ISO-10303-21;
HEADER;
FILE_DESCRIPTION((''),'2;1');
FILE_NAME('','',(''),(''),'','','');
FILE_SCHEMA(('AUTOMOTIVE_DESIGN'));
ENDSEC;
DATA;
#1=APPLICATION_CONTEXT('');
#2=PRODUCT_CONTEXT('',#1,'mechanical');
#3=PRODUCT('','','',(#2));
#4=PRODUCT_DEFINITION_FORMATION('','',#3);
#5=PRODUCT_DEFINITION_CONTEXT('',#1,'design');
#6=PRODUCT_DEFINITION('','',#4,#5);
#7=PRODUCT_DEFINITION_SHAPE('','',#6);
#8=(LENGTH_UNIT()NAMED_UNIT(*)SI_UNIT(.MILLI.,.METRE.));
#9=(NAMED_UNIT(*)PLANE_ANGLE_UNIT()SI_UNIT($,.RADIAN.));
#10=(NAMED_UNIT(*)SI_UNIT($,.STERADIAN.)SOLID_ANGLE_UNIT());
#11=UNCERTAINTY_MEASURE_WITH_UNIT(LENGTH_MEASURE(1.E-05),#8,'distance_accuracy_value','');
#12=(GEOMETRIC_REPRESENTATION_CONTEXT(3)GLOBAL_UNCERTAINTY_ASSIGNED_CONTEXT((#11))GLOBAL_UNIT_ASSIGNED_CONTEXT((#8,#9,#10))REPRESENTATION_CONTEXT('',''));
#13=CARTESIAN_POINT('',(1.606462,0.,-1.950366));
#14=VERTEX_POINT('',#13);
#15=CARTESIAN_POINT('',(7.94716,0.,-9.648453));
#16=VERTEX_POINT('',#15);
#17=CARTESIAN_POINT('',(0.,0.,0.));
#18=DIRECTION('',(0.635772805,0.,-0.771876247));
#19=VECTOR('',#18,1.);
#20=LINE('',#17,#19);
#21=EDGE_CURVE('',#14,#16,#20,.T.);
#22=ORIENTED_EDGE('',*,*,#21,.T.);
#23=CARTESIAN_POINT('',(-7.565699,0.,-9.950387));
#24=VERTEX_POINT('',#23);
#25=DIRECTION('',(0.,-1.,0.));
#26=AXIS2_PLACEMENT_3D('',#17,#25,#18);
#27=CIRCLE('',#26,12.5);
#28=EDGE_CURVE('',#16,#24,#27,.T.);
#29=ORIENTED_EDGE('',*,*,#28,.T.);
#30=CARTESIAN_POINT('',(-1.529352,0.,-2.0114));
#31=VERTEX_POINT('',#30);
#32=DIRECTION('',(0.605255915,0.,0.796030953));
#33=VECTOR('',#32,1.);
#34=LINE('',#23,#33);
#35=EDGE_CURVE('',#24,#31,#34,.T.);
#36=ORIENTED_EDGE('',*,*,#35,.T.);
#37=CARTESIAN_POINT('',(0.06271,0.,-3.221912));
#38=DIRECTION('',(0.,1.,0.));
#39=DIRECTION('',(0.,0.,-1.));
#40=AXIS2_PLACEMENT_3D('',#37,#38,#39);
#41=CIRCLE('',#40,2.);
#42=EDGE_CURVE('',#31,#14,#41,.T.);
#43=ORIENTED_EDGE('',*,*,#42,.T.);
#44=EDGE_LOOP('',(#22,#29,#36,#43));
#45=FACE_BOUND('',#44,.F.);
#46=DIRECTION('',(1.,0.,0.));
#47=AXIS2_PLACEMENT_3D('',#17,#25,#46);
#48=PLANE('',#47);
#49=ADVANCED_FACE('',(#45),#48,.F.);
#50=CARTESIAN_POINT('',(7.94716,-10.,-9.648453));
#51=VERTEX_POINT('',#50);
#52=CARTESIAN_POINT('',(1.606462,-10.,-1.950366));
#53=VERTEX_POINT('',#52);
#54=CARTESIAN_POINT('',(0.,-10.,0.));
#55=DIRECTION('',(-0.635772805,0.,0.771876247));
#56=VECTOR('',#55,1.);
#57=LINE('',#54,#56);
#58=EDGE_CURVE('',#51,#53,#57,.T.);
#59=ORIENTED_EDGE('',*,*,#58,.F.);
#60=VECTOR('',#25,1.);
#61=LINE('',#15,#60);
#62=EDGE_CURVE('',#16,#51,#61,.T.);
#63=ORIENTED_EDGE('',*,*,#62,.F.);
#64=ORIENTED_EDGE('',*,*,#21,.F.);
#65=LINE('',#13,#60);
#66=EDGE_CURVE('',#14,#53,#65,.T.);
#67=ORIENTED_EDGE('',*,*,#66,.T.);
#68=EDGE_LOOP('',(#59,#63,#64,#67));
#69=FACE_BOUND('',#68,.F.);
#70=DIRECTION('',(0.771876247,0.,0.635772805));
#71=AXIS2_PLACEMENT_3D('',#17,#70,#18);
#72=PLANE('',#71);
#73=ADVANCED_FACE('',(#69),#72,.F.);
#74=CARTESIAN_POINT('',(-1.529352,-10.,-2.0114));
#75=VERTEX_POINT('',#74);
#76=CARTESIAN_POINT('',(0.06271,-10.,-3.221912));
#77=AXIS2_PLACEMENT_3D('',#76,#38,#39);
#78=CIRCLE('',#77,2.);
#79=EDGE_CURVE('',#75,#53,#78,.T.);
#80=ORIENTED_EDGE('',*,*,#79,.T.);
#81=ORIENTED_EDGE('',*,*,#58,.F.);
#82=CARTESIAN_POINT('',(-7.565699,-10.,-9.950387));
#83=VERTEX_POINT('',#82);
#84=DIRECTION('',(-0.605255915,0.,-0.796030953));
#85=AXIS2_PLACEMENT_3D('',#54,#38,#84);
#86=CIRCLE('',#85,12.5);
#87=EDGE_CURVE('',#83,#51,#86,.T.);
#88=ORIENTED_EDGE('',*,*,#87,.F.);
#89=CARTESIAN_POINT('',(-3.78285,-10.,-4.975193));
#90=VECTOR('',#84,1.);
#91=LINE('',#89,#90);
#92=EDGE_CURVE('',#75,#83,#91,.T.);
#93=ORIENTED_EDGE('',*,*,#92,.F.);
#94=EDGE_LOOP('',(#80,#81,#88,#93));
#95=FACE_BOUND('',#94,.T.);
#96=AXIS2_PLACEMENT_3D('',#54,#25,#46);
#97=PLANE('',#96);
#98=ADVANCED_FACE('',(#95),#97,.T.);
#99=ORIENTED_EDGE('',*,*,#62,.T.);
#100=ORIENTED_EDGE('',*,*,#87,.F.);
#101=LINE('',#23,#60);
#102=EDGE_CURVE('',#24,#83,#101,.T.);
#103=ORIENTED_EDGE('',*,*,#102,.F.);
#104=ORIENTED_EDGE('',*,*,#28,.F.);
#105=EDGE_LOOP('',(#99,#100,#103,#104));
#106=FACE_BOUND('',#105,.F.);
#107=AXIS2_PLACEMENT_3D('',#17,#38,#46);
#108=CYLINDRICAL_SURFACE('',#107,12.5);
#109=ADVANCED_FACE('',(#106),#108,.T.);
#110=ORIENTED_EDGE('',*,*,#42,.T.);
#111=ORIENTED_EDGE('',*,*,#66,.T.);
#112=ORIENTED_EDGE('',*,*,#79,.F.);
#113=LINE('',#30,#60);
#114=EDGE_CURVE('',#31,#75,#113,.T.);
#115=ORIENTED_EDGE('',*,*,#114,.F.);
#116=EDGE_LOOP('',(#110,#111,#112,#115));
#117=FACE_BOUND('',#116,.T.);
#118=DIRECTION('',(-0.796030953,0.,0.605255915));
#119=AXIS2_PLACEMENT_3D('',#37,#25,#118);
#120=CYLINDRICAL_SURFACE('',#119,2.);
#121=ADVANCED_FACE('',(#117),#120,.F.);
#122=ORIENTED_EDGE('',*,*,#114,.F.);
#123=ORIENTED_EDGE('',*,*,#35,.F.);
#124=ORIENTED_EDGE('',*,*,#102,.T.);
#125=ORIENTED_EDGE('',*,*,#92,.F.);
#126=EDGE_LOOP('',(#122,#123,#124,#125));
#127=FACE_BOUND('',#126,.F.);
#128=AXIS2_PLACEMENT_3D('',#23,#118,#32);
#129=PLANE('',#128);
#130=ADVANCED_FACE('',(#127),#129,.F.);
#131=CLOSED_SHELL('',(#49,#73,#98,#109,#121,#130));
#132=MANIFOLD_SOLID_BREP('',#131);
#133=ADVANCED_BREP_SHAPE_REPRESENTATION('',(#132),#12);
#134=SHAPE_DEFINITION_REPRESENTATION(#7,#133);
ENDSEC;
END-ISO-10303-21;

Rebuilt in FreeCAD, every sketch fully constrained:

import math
import FreeCAD as App
import Part
import Sketcher
from FreeCAD import Vector
Q = App.Units.Quantity


def edges_at(feature, points):
    """Names of the edges that pass closest to the given points."""
    edges = feature.Shape.Edges
    near = lambda p: min(range(len(edges)), key=lambda i: edges[i].distToShape(Part.Vertex(*p))[0])
    return sorted({f"Edge{near(p) + 1}" for p in points})

doc = App.newDocument("Part")
body = doc.addObject("PartDesign::Body", "Body")

sketch1 = body.newObject("Sketcher::SketchObject", "Sketch")
sketch1.AttachmentSupport = (doc.getObject("XZ_Plane"), [""])
sketch1.MapMode = "FlatFace"
sketch1.addGeometry(Part.Circle(Vector(0, 0, 0), Vector(0, 0, 1), 12.5), False)
sketch1.addConstraint([
    Sketcher.Constraint("Coincident", 0, 3, -1, 1),
    Sketcher.Constraint("Diameter", 0, Q("25 mm")),
])
pad1 = body.newObject("PartDesign::Pad", "Pad")
pad1.Profile = sketch1
pad1.Length = 10

sketch2 = body.newObject("Sketcher::SketchObject", "Sketch001")
sketch2.AttachmentSupport = (doc.getObject("XZ_Plane"), [""])
sketch2.MapMode = "FlatFace"
sketch2.addGeometry([
    Part.LineSegment(Vector(0, 0, 0), Vector(7.94716, -9.648453, 0)),
    Part.ArcOfCircle(Part.Circle(Vector(0, 0, 0), Vector(0, 0, 1), 12.5), math.radians(-127.247259), math.radians(-50.522674)),
    Part.LineSegment(Vector(-7.565699, -9.950387, 0), Vector(0, 0, 0)),
], False)
sketch2.addConstraint([
    Sketcher.Constraint("Coincident", 0, 2, 1, 2),
    Sketcher.Constraint("Coincident", 1, 1, 2, 1),
    Sketcher.Constraint("Coincident", 2, 2, 0, 1),
    Sketcher.Constraint("Coincident", 1, 3, -1, 1),
    Sketcher.Constraint("Coincident", 2, 2, -1, 1),
    Sketcher.Constraint("Radius", 1, Q("12.5 mm")),
    Sketcher.Constraint("DistanceX", 1, 1, -1, 1, Q("7.565699 mm")),
    Sketcher.Constraint("DistanceX", -1, 1, 0, 2, Q("7.94716 mm")),
])
pocket1 = body.newObject("PartDesign::Pocket", "Pocket")
pocket1.Profile = sketch2
pocket1.Length = 25.4
pocket1.Reversed = True
doc.recompute()

fillet = body.newObject("PartDesign::Fillet", "Fillet")
fillet.Base = (pocket1, edges_at(pocket1, [(0, -5, 0)]))
fillet.Radius = 2

doc.recompute()
